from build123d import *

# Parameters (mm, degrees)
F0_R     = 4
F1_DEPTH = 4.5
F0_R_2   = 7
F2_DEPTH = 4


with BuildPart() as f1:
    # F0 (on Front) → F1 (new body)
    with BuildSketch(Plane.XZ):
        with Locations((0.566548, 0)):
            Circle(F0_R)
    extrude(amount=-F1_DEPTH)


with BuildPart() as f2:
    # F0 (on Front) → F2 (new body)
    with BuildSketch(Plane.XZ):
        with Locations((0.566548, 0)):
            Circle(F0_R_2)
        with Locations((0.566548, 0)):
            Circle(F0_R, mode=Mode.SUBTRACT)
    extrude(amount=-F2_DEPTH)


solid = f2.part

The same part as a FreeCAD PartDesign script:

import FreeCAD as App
import Part
import Sketcher
from FreeCAD import Vector

doc = App.newDocument("Part")
body = doc.addObject("PartDesign::Body", "Body")

sketch1 = body.newObject("Sketcher::SketchObject", "Sketch")
sketch1.AttachmentSupport = (doc.getObject("XZ_Plane"), [""])
sketch1.MapMode = "FlatFace"
sketch1.addGeometry(Part.Circle(Vector(0.6, 0, 0), Vector(0, 0, 1), 4), False)
sketch1.addConstraint([
    Sketcher.Constraint("PointOnObject", 0, 3, -1),
    Sketcher.Constraint("Diameter", 0, 8.0),
    Sketcher.Constraint("DistanceX", -1, 1, 0, 3, 0.566548),
])
pad1 = body.newObject("PartDesign::Pad", "Pad")
pad1.Profile = sketch1
pad1.Length = 4.5
pad1.Reversed = True
body2 = doc.addObject("PartDesign::Body", "Body001")

sketch2 = body2.newObject("Sketcher::SketchObject", "Sketch001")
sketch2.AttachmentSupport = (doc.getObject("XZ_Plane001"), [""])
sketch2.MapMode = "FlatFace"
sketch2.addGeometry([
    Part.Circle(Vector(0.6, 0, 0), Vector(0, 0, 1), 7),
    Part.Circle(Vector(0.6, 0, 0), Vector(0, 0, 1), 4),
], False)
sketch2.addConstraint([
    Sketcher.Constraint("Coincident", 1, 3, 0, 3),
    Sketcher.Constraint("PointOnObject", 0, 3, -1),
    Sketcher.Constraint("Diameter", 0, 14.0),
    Sketcher.Constraint("Diameter", 1, 8.0),
    Sketcher.Constraint("DistanceX", -1, 1, 0, 3, 0.566548),
])
pad2 = body2.newObject("PartDesign::Pad", "Pad001")
pad2.Profile = sketch2
pad2.Length = 4
pad2.Reversed = True
body.Visibility = False

doc.recompute()
